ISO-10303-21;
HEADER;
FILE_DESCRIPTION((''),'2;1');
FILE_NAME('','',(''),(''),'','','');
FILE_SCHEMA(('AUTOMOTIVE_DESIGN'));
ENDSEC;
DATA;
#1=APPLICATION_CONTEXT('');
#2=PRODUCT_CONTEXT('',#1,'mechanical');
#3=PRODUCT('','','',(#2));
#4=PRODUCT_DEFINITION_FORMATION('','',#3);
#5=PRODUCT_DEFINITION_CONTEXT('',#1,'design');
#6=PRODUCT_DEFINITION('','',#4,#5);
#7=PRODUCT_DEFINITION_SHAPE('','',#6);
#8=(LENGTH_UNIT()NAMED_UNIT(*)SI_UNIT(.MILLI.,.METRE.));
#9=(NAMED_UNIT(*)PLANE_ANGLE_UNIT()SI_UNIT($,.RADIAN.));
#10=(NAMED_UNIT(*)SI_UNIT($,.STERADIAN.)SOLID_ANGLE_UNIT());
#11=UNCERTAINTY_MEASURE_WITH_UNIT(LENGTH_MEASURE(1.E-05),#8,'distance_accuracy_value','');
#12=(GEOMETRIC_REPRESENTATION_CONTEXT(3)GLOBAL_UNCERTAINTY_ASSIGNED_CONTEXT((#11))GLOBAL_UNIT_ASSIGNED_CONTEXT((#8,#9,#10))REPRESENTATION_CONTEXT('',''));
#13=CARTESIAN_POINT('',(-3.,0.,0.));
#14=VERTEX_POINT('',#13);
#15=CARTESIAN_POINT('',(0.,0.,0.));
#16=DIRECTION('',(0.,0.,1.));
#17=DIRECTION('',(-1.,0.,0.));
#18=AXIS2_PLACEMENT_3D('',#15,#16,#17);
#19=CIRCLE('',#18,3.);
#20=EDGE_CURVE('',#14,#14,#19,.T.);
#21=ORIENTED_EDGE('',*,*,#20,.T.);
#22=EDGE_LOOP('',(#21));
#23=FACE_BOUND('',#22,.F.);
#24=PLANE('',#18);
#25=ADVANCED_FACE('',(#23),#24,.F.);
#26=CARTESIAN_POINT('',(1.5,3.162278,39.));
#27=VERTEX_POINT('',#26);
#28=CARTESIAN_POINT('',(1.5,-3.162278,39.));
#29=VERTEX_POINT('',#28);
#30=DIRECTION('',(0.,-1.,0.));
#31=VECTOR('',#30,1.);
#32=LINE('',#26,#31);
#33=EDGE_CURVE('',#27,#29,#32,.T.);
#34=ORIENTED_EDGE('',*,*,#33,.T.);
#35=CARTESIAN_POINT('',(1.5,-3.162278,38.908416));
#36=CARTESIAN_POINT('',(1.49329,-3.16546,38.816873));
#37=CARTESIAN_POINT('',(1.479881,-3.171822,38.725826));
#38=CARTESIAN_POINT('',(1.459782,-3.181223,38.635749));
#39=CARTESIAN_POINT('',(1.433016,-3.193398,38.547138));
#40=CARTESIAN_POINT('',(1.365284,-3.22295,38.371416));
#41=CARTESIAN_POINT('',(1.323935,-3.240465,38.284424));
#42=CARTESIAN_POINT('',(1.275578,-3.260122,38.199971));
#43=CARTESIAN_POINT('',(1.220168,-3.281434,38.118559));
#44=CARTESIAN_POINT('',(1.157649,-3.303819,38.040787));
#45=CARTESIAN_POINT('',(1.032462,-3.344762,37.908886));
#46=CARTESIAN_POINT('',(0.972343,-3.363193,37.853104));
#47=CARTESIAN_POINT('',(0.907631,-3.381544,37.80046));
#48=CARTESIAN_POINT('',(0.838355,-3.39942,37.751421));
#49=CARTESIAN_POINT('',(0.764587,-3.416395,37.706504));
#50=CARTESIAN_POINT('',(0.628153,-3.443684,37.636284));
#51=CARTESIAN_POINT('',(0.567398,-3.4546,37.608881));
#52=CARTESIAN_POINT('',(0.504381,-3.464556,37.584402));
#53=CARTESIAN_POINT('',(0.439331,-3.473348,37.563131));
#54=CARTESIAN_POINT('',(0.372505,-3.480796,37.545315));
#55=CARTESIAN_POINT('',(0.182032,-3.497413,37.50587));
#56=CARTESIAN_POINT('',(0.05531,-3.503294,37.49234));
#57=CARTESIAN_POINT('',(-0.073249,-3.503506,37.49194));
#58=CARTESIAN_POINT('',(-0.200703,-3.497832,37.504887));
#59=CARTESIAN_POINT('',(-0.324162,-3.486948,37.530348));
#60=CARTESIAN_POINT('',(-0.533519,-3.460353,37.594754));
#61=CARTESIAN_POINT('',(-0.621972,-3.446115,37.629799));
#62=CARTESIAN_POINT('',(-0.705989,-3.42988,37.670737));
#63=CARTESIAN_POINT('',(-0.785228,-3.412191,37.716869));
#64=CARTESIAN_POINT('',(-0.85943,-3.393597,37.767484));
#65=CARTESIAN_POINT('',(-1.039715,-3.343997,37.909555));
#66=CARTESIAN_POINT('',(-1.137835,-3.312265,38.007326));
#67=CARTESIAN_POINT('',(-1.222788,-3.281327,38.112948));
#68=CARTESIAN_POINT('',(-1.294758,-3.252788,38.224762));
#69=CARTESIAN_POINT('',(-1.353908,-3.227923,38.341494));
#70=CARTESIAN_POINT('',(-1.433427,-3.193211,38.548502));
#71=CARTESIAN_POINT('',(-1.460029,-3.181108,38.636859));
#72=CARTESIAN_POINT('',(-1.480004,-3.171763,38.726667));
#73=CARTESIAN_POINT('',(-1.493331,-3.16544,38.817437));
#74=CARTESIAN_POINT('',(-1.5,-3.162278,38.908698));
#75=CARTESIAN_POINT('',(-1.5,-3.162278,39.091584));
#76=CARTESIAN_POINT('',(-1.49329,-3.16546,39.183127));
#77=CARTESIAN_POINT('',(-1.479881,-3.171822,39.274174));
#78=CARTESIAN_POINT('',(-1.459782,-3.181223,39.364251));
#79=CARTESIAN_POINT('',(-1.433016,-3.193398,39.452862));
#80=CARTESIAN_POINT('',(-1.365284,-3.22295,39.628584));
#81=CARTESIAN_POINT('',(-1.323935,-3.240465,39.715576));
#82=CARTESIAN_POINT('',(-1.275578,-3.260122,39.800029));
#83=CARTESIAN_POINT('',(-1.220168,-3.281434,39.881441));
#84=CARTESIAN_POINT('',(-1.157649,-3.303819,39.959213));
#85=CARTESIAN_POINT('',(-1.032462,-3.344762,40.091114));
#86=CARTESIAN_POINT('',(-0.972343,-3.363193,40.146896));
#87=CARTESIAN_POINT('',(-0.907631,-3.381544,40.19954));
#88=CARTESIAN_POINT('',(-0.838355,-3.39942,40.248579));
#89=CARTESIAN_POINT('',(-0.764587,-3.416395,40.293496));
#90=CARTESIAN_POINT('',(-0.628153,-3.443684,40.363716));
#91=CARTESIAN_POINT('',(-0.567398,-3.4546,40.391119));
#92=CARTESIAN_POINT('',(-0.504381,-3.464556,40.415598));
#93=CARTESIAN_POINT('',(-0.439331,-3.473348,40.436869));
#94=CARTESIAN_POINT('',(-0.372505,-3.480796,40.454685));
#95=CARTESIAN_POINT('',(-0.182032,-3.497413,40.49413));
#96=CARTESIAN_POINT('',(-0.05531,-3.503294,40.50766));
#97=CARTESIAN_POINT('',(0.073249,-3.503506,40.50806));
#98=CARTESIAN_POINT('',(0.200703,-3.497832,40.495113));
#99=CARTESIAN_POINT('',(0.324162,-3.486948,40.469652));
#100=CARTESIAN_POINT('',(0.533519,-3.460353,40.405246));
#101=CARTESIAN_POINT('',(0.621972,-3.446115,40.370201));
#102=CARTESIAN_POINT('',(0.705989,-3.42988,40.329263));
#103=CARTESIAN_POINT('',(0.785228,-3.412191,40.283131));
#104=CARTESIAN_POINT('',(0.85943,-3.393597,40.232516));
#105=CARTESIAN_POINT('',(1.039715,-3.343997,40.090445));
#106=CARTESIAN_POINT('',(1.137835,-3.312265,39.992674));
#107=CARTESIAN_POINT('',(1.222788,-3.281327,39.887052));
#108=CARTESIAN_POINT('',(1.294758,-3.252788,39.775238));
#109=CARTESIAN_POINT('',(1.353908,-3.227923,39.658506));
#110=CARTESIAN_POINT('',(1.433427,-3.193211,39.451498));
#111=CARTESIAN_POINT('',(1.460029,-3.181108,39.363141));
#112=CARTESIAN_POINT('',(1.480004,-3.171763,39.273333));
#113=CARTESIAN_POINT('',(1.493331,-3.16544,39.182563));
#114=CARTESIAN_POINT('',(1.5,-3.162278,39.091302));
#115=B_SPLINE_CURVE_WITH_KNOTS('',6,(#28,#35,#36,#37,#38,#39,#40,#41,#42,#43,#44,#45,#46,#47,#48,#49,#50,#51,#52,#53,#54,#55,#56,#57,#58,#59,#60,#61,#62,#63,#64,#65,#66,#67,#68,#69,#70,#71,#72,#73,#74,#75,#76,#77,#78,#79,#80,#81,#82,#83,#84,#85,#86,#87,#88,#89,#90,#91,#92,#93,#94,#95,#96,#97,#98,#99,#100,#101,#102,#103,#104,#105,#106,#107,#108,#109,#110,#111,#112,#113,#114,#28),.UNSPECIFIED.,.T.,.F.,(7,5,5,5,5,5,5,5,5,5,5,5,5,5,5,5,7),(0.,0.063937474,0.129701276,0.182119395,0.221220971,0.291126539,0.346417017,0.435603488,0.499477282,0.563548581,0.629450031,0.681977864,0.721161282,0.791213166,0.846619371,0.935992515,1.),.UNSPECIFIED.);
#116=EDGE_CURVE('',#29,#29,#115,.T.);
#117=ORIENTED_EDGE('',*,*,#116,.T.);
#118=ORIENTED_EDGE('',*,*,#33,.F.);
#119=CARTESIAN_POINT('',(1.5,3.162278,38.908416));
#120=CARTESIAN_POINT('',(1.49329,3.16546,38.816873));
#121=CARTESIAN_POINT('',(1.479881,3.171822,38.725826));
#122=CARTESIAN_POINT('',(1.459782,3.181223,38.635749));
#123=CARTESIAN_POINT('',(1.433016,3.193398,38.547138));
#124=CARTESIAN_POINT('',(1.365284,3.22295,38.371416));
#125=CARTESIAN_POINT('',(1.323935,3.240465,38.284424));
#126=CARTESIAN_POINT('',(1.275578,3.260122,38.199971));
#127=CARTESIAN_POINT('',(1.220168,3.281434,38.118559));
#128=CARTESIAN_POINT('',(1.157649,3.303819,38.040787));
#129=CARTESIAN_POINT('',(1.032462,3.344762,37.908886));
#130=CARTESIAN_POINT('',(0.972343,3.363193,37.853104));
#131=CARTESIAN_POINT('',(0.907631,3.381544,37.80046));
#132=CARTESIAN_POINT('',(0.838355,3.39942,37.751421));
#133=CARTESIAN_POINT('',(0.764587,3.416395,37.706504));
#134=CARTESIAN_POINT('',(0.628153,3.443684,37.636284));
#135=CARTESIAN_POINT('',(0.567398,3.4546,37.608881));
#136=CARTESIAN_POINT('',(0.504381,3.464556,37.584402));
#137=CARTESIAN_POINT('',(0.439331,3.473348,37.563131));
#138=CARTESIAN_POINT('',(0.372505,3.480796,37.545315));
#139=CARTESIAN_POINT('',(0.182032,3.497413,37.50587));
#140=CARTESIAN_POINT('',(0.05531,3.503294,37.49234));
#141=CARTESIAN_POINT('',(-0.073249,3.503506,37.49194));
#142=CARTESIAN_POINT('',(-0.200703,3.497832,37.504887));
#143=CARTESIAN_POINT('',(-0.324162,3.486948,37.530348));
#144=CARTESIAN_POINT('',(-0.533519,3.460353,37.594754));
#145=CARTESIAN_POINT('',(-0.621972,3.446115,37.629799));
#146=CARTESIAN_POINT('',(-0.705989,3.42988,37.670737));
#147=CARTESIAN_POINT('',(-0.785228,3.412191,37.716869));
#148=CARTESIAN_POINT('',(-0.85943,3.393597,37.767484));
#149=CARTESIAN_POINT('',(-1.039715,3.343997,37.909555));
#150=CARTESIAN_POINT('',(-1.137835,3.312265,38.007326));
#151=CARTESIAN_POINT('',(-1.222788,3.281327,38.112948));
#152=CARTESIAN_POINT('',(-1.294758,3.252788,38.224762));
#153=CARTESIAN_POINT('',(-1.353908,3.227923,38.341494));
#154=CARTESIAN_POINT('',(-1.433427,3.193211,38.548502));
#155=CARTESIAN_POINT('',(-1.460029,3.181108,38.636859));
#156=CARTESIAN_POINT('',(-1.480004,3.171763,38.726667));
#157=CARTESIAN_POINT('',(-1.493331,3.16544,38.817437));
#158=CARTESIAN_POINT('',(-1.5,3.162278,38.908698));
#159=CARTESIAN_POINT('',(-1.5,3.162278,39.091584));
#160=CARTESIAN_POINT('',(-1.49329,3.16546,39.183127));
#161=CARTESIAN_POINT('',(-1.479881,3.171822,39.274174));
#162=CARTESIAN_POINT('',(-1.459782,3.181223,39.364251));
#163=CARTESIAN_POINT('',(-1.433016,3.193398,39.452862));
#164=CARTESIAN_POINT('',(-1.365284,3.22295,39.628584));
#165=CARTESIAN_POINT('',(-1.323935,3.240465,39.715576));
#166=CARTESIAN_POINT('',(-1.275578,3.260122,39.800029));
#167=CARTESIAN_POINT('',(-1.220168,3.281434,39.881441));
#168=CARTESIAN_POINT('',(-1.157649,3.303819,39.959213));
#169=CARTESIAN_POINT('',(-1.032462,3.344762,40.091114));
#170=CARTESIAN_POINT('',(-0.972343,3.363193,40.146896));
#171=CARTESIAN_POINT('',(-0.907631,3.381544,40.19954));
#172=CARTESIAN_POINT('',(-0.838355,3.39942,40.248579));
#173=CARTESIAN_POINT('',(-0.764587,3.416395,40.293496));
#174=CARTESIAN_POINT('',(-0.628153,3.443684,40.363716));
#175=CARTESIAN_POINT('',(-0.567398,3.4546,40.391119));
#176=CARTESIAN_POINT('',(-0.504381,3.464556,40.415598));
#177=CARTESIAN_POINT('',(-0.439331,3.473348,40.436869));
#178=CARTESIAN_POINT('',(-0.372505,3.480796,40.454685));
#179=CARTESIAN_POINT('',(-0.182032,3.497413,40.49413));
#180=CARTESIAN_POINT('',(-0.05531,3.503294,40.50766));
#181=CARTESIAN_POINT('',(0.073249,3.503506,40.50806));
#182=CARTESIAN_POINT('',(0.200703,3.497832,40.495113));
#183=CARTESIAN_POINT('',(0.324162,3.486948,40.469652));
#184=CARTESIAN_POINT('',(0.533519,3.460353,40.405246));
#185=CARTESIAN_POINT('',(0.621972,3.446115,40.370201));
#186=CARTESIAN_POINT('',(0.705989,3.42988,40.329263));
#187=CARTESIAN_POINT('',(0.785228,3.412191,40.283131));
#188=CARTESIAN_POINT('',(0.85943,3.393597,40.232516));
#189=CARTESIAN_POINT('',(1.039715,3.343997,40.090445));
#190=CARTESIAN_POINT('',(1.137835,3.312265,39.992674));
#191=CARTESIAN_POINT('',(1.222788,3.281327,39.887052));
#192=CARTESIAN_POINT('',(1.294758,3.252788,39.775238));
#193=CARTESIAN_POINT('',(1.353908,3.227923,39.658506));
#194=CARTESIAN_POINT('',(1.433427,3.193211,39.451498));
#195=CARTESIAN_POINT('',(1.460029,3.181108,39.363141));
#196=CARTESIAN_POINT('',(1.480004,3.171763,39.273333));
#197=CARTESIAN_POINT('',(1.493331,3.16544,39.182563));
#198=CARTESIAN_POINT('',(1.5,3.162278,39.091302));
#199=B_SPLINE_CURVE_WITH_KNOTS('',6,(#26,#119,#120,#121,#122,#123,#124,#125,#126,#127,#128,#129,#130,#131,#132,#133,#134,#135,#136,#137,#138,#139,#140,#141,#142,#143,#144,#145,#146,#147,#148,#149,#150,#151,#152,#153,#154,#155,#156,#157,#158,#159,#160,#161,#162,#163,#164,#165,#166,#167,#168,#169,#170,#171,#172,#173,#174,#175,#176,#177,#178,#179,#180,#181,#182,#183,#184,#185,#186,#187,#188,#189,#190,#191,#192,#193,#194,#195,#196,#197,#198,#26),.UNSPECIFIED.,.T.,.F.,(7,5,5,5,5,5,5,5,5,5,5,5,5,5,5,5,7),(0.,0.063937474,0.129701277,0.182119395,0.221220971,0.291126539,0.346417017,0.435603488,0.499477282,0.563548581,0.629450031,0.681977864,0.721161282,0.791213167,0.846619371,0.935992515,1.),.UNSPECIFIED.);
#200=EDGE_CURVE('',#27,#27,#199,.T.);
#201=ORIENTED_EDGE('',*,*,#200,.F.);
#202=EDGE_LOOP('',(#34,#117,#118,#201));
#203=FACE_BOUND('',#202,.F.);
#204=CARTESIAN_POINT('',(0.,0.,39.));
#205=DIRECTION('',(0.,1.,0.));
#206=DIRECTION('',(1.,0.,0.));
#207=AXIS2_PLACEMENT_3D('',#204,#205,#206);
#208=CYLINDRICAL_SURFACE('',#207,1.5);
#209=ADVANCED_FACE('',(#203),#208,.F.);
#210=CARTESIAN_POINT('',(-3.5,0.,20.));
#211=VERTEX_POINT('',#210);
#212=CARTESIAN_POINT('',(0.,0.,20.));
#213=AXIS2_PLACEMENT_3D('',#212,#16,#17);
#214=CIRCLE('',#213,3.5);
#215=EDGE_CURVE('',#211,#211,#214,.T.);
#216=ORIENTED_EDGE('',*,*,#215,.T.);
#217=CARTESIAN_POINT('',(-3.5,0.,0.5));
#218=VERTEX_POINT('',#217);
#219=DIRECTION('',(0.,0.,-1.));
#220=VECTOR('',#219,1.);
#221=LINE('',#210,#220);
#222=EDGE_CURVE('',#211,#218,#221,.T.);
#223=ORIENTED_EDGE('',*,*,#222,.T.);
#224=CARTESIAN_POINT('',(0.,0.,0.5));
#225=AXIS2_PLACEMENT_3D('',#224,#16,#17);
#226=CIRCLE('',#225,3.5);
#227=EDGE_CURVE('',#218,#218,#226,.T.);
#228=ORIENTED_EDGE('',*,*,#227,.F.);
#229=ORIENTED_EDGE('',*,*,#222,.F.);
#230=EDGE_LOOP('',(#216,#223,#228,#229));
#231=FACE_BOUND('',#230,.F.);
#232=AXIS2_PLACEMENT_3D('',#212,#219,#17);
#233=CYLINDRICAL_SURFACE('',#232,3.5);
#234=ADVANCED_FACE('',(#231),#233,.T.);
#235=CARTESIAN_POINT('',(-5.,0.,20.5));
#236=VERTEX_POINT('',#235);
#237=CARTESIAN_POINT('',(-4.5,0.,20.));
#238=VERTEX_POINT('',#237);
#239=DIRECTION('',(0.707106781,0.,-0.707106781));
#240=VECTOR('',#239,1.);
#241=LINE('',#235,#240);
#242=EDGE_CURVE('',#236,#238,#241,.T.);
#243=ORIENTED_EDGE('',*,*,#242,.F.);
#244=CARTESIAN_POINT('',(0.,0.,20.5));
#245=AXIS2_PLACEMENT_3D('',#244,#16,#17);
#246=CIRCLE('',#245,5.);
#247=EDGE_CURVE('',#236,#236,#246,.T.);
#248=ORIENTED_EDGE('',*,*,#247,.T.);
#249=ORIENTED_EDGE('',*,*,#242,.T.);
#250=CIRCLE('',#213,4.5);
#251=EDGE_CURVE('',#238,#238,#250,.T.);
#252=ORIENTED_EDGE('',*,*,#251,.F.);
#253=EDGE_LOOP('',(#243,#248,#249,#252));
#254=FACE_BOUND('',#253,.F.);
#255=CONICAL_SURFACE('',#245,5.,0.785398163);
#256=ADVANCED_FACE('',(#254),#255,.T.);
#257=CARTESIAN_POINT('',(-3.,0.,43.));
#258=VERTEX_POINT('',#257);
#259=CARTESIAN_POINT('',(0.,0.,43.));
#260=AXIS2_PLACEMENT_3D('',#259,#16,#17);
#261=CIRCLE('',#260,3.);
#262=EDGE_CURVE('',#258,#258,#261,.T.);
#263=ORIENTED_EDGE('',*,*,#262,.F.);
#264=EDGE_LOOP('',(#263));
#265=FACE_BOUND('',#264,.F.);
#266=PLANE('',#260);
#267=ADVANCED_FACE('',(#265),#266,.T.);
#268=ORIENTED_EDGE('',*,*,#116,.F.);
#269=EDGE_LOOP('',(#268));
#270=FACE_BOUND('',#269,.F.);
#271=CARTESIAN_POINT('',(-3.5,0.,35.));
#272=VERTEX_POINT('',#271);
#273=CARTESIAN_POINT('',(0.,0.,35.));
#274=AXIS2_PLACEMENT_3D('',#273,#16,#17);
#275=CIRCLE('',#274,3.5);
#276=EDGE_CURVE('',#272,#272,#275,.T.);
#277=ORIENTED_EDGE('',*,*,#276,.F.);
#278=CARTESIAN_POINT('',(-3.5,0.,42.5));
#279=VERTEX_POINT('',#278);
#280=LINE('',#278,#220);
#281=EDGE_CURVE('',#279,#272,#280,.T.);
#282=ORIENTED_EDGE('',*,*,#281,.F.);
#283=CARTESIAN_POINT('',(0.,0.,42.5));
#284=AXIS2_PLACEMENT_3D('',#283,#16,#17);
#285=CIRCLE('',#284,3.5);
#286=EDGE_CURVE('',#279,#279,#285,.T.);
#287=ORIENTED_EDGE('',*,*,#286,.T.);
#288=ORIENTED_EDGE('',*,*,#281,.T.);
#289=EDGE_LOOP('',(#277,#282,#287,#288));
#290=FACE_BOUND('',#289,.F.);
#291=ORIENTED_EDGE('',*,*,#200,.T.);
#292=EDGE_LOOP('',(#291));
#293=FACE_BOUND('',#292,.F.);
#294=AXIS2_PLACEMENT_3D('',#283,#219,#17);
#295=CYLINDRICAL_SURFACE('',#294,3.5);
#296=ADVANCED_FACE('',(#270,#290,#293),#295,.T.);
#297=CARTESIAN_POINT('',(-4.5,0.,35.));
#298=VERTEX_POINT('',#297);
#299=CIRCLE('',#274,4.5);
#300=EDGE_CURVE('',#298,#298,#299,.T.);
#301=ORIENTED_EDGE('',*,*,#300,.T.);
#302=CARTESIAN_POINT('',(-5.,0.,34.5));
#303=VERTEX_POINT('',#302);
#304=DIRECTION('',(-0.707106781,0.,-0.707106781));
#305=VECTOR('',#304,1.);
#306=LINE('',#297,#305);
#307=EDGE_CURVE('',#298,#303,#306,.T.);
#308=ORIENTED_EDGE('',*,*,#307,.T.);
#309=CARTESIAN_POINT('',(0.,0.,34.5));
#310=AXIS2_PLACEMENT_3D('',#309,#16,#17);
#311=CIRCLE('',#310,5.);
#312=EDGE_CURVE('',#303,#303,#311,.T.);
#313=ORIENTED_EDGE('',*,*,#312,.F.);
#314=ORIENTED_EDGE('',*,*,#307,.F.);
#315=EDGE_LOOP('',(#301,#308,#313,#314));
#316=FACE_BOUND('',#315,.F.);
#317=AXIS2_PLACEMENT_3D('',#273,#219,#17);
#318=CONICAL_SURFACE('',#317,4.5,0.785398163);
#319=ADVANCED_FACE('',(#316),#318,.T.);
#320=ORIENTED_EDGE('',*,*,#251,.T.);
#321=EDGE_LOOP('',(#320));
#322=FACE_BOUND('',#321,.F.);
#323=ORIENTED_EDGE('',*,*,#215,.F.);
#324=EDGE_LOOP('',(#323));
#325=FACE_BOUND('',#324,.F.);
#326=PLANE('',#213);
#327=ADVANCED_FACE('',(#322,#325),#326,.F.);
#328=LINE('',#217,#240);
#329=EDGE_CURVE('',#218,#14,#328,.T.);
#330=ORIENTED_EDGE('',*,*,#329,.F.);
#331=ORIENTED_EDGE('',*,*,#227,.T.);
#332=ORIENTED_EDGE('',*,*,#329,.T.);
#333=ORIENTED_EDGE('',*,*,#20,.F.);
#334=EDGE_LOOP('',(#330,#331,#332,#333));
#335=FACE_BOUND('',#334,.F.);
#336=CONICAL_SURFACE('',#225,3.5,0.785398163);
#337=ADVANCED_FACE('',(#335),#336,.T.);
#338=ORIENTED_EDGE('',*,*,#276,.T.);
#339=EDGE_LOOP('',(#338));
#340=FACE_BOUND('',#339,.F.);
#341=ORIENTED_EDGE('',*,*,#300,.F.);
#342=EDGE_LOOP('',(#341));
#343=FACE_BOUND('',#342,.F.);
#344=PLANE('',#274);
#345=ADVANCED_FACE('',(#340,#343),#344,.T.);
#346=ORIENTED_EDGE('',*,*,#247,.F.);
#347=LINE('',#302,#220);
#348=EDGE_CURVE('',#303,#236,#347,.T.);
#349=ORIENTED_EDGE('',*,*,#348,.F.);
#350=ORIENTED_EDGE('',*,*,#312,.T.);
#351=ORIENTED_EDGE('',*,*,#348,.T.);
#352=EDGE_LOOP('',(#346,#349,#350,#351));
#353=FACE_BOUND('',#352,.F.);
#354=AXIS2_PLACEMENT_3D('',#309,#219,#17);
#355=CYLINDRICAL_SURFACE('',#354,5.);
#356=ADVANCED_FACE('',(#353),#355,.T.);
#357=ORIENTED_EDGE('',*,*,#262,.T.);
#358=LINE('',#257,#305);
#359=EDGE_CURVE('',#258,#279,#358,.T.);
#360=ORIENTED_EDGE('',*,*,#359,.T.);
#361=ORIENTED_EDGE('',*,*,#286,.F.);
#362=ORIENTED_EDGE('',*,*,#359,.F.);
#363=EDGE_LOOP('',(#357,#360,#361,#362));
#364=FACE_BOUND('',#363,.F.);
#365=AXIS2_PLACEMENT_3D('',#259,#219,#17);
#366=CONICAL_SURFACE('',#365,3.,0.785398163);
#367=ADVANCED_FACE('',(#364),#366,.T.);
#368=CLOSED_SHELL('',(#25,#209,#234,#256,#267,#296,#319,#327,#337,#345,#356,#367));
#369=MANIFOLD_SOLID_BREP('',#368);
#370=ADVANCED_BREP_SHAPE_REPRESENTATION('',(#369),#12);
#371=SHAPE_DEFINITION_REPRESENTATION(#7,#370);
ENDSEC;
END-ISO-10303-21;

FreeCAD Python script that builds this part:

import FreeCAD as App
import Part
import Sketcher
from FreeCAD import Vector
Q = App.Units.Quantity


def add_polygon(sketch, points):
    """Adds a closed chain of lines whose ends are joined by coincident constraints."""
    first, n = sketch.GeometryCount, len(points)
    for a, b in zip(points, points[1:] + points[:1]):
        sketch.addGeometry(Part.LineSegment(App.Vector(*a, 0), App.Vector(*b, 0)), False)
    for i in range(n):
        sketch.addConstraint(Sketcher.Constraint("Coincident", first + i, 2, first + (i + 1) % n, 1))

doc = App.newDocument("Part")
body = doc.addObject("PartDesign::Body", "Body")

# Sketch on XZ plane
sketch1 = body.newObject("Sketcher::SketchObject", "Sketch")
sketch1.AttachmentSupport = (doc.getObject("XZ_Plane"), [""])
sketch1.MapMode = "FlatFace"
add_polygon(sketch1, [(0, 0), (-3, 0), (-3.5, 0.5), (-3.5, 20), (-4.5, 20), (-5, 20.5), (-5, 34.5), (-4.5, 35), (-3.5, 35), (-3.5, 42.5), (-3, 43), (0, 43)])  # lines 0-11
sketch1.addConstraint(Sketcher.Constraint("Horizontal", 0))
sketch1.addConstraint(Sketcher.Constraint("Vertical", 2))
sketch1.addConstraint(Sketcher.Constraint("Horizontal", 3))
sketch1.addConstraint(Sketcher.Constraint("Vertical", 5))
sketch1.addConstraint(Sketcher.Constraint("Horizontal", 7))
sketch1.addConstraint(Sketcher.Constraint("Vertical", 8))
sketch1.addConstraint(Sketcher.Constraint("Horizontal", 10))
sketch1.addConstraint(Sketcher.Constraint("Vertical", 11))
sketch1.addConstraint(Sketcher.Constraint("Coincident", 11, 2, -1, 1))
sketch1.addConstraint(Sketcher.Constraint("Parallel", 1, 4))
sketch1.addConstraint(Sketcher.Constraint("Perpendicular", 4, 6))
sketch1.addConstraint(Sketcher.Constraint("Parallel", 6, 9))
sketch1.addConstraint(Sketcher.Constraint("Vertical", 3, 2, 6, 2))
sketch1.addConstraint(Sketcher.Constraint("Vertical", 2, 2, 7, 2))
sketch1.addConstraint(Sketcher.Constraint("Vertical", 0, 2, 9, 2))
sketch1.addConstraint(Sketcher.Constraint("Equal", 1, 4))
sketch1.addConstraint(Sketcher.Constraint("Equal", 4, 6))
sketch1.addConstraint(Sketcher.Constraint("DistanceX", 0, 2, 0, 1, Q("3 mm")))
sketch1.addConstraint(Sketcher.Constraint("DistanceY", 11, 2, 11, 1, Q("43 mm")))
sketch1.addConstraint(Sketcher.Constraint("DistanceX", 4, 2, -1, 1, Q("5 mm")))
sketch1.addConstraint(Sketcher.Constraint("DistanceY", 3, 2, 6, 2, Q("15 mm")))
sketch1.addConstraint(Sketcher.Constraint("DistanceY", 5, 2, 8, 2, Q("8 mm")))
sketch1.addConstraint(Sketcher.Constraint("DistanceY", -1, 1, 1, 2, Q("0.5 mm")))
revolution = body.newObject("PartDesign::Revolution", "Revolution")
revolution.Profile = sketch1
revolution.ReferenceAxis = (sketch1, ["V_Axis"])
revolution.Angle = 360

# Sketch on XZ plane
sketch2 = body.newObject("Sketcher::SketchObject", "Sketch001")
sketch2.AttachmentSupport = (doc.getObject("XZ_Plane"), [""])
sketch2.MapMode = "FlatFace"
sketch2.addGeometry(Part.Circle(Vector(0, 39, 0), Vector(0, 0, 1), 1.5), False)
sketch2.addConstraint(Sketcher.Constraint("PointOnObject", 0, 3, -2))
sketch2.addConstraint(Sketcher.Constraint("Diameter", 0, Q("3 mm")))
sketch2.addConstraint(Sketcher.Constraint("DistanceY", -1, 1, 0, 3, Q("39 mm")))
pocket1 = body.newObject("PartDesign::Pocket", "Pocket")
pocket1.Profile = sketch2
pocket1.Length = 10
pocket1.Midplane = True

doc.recompute()
